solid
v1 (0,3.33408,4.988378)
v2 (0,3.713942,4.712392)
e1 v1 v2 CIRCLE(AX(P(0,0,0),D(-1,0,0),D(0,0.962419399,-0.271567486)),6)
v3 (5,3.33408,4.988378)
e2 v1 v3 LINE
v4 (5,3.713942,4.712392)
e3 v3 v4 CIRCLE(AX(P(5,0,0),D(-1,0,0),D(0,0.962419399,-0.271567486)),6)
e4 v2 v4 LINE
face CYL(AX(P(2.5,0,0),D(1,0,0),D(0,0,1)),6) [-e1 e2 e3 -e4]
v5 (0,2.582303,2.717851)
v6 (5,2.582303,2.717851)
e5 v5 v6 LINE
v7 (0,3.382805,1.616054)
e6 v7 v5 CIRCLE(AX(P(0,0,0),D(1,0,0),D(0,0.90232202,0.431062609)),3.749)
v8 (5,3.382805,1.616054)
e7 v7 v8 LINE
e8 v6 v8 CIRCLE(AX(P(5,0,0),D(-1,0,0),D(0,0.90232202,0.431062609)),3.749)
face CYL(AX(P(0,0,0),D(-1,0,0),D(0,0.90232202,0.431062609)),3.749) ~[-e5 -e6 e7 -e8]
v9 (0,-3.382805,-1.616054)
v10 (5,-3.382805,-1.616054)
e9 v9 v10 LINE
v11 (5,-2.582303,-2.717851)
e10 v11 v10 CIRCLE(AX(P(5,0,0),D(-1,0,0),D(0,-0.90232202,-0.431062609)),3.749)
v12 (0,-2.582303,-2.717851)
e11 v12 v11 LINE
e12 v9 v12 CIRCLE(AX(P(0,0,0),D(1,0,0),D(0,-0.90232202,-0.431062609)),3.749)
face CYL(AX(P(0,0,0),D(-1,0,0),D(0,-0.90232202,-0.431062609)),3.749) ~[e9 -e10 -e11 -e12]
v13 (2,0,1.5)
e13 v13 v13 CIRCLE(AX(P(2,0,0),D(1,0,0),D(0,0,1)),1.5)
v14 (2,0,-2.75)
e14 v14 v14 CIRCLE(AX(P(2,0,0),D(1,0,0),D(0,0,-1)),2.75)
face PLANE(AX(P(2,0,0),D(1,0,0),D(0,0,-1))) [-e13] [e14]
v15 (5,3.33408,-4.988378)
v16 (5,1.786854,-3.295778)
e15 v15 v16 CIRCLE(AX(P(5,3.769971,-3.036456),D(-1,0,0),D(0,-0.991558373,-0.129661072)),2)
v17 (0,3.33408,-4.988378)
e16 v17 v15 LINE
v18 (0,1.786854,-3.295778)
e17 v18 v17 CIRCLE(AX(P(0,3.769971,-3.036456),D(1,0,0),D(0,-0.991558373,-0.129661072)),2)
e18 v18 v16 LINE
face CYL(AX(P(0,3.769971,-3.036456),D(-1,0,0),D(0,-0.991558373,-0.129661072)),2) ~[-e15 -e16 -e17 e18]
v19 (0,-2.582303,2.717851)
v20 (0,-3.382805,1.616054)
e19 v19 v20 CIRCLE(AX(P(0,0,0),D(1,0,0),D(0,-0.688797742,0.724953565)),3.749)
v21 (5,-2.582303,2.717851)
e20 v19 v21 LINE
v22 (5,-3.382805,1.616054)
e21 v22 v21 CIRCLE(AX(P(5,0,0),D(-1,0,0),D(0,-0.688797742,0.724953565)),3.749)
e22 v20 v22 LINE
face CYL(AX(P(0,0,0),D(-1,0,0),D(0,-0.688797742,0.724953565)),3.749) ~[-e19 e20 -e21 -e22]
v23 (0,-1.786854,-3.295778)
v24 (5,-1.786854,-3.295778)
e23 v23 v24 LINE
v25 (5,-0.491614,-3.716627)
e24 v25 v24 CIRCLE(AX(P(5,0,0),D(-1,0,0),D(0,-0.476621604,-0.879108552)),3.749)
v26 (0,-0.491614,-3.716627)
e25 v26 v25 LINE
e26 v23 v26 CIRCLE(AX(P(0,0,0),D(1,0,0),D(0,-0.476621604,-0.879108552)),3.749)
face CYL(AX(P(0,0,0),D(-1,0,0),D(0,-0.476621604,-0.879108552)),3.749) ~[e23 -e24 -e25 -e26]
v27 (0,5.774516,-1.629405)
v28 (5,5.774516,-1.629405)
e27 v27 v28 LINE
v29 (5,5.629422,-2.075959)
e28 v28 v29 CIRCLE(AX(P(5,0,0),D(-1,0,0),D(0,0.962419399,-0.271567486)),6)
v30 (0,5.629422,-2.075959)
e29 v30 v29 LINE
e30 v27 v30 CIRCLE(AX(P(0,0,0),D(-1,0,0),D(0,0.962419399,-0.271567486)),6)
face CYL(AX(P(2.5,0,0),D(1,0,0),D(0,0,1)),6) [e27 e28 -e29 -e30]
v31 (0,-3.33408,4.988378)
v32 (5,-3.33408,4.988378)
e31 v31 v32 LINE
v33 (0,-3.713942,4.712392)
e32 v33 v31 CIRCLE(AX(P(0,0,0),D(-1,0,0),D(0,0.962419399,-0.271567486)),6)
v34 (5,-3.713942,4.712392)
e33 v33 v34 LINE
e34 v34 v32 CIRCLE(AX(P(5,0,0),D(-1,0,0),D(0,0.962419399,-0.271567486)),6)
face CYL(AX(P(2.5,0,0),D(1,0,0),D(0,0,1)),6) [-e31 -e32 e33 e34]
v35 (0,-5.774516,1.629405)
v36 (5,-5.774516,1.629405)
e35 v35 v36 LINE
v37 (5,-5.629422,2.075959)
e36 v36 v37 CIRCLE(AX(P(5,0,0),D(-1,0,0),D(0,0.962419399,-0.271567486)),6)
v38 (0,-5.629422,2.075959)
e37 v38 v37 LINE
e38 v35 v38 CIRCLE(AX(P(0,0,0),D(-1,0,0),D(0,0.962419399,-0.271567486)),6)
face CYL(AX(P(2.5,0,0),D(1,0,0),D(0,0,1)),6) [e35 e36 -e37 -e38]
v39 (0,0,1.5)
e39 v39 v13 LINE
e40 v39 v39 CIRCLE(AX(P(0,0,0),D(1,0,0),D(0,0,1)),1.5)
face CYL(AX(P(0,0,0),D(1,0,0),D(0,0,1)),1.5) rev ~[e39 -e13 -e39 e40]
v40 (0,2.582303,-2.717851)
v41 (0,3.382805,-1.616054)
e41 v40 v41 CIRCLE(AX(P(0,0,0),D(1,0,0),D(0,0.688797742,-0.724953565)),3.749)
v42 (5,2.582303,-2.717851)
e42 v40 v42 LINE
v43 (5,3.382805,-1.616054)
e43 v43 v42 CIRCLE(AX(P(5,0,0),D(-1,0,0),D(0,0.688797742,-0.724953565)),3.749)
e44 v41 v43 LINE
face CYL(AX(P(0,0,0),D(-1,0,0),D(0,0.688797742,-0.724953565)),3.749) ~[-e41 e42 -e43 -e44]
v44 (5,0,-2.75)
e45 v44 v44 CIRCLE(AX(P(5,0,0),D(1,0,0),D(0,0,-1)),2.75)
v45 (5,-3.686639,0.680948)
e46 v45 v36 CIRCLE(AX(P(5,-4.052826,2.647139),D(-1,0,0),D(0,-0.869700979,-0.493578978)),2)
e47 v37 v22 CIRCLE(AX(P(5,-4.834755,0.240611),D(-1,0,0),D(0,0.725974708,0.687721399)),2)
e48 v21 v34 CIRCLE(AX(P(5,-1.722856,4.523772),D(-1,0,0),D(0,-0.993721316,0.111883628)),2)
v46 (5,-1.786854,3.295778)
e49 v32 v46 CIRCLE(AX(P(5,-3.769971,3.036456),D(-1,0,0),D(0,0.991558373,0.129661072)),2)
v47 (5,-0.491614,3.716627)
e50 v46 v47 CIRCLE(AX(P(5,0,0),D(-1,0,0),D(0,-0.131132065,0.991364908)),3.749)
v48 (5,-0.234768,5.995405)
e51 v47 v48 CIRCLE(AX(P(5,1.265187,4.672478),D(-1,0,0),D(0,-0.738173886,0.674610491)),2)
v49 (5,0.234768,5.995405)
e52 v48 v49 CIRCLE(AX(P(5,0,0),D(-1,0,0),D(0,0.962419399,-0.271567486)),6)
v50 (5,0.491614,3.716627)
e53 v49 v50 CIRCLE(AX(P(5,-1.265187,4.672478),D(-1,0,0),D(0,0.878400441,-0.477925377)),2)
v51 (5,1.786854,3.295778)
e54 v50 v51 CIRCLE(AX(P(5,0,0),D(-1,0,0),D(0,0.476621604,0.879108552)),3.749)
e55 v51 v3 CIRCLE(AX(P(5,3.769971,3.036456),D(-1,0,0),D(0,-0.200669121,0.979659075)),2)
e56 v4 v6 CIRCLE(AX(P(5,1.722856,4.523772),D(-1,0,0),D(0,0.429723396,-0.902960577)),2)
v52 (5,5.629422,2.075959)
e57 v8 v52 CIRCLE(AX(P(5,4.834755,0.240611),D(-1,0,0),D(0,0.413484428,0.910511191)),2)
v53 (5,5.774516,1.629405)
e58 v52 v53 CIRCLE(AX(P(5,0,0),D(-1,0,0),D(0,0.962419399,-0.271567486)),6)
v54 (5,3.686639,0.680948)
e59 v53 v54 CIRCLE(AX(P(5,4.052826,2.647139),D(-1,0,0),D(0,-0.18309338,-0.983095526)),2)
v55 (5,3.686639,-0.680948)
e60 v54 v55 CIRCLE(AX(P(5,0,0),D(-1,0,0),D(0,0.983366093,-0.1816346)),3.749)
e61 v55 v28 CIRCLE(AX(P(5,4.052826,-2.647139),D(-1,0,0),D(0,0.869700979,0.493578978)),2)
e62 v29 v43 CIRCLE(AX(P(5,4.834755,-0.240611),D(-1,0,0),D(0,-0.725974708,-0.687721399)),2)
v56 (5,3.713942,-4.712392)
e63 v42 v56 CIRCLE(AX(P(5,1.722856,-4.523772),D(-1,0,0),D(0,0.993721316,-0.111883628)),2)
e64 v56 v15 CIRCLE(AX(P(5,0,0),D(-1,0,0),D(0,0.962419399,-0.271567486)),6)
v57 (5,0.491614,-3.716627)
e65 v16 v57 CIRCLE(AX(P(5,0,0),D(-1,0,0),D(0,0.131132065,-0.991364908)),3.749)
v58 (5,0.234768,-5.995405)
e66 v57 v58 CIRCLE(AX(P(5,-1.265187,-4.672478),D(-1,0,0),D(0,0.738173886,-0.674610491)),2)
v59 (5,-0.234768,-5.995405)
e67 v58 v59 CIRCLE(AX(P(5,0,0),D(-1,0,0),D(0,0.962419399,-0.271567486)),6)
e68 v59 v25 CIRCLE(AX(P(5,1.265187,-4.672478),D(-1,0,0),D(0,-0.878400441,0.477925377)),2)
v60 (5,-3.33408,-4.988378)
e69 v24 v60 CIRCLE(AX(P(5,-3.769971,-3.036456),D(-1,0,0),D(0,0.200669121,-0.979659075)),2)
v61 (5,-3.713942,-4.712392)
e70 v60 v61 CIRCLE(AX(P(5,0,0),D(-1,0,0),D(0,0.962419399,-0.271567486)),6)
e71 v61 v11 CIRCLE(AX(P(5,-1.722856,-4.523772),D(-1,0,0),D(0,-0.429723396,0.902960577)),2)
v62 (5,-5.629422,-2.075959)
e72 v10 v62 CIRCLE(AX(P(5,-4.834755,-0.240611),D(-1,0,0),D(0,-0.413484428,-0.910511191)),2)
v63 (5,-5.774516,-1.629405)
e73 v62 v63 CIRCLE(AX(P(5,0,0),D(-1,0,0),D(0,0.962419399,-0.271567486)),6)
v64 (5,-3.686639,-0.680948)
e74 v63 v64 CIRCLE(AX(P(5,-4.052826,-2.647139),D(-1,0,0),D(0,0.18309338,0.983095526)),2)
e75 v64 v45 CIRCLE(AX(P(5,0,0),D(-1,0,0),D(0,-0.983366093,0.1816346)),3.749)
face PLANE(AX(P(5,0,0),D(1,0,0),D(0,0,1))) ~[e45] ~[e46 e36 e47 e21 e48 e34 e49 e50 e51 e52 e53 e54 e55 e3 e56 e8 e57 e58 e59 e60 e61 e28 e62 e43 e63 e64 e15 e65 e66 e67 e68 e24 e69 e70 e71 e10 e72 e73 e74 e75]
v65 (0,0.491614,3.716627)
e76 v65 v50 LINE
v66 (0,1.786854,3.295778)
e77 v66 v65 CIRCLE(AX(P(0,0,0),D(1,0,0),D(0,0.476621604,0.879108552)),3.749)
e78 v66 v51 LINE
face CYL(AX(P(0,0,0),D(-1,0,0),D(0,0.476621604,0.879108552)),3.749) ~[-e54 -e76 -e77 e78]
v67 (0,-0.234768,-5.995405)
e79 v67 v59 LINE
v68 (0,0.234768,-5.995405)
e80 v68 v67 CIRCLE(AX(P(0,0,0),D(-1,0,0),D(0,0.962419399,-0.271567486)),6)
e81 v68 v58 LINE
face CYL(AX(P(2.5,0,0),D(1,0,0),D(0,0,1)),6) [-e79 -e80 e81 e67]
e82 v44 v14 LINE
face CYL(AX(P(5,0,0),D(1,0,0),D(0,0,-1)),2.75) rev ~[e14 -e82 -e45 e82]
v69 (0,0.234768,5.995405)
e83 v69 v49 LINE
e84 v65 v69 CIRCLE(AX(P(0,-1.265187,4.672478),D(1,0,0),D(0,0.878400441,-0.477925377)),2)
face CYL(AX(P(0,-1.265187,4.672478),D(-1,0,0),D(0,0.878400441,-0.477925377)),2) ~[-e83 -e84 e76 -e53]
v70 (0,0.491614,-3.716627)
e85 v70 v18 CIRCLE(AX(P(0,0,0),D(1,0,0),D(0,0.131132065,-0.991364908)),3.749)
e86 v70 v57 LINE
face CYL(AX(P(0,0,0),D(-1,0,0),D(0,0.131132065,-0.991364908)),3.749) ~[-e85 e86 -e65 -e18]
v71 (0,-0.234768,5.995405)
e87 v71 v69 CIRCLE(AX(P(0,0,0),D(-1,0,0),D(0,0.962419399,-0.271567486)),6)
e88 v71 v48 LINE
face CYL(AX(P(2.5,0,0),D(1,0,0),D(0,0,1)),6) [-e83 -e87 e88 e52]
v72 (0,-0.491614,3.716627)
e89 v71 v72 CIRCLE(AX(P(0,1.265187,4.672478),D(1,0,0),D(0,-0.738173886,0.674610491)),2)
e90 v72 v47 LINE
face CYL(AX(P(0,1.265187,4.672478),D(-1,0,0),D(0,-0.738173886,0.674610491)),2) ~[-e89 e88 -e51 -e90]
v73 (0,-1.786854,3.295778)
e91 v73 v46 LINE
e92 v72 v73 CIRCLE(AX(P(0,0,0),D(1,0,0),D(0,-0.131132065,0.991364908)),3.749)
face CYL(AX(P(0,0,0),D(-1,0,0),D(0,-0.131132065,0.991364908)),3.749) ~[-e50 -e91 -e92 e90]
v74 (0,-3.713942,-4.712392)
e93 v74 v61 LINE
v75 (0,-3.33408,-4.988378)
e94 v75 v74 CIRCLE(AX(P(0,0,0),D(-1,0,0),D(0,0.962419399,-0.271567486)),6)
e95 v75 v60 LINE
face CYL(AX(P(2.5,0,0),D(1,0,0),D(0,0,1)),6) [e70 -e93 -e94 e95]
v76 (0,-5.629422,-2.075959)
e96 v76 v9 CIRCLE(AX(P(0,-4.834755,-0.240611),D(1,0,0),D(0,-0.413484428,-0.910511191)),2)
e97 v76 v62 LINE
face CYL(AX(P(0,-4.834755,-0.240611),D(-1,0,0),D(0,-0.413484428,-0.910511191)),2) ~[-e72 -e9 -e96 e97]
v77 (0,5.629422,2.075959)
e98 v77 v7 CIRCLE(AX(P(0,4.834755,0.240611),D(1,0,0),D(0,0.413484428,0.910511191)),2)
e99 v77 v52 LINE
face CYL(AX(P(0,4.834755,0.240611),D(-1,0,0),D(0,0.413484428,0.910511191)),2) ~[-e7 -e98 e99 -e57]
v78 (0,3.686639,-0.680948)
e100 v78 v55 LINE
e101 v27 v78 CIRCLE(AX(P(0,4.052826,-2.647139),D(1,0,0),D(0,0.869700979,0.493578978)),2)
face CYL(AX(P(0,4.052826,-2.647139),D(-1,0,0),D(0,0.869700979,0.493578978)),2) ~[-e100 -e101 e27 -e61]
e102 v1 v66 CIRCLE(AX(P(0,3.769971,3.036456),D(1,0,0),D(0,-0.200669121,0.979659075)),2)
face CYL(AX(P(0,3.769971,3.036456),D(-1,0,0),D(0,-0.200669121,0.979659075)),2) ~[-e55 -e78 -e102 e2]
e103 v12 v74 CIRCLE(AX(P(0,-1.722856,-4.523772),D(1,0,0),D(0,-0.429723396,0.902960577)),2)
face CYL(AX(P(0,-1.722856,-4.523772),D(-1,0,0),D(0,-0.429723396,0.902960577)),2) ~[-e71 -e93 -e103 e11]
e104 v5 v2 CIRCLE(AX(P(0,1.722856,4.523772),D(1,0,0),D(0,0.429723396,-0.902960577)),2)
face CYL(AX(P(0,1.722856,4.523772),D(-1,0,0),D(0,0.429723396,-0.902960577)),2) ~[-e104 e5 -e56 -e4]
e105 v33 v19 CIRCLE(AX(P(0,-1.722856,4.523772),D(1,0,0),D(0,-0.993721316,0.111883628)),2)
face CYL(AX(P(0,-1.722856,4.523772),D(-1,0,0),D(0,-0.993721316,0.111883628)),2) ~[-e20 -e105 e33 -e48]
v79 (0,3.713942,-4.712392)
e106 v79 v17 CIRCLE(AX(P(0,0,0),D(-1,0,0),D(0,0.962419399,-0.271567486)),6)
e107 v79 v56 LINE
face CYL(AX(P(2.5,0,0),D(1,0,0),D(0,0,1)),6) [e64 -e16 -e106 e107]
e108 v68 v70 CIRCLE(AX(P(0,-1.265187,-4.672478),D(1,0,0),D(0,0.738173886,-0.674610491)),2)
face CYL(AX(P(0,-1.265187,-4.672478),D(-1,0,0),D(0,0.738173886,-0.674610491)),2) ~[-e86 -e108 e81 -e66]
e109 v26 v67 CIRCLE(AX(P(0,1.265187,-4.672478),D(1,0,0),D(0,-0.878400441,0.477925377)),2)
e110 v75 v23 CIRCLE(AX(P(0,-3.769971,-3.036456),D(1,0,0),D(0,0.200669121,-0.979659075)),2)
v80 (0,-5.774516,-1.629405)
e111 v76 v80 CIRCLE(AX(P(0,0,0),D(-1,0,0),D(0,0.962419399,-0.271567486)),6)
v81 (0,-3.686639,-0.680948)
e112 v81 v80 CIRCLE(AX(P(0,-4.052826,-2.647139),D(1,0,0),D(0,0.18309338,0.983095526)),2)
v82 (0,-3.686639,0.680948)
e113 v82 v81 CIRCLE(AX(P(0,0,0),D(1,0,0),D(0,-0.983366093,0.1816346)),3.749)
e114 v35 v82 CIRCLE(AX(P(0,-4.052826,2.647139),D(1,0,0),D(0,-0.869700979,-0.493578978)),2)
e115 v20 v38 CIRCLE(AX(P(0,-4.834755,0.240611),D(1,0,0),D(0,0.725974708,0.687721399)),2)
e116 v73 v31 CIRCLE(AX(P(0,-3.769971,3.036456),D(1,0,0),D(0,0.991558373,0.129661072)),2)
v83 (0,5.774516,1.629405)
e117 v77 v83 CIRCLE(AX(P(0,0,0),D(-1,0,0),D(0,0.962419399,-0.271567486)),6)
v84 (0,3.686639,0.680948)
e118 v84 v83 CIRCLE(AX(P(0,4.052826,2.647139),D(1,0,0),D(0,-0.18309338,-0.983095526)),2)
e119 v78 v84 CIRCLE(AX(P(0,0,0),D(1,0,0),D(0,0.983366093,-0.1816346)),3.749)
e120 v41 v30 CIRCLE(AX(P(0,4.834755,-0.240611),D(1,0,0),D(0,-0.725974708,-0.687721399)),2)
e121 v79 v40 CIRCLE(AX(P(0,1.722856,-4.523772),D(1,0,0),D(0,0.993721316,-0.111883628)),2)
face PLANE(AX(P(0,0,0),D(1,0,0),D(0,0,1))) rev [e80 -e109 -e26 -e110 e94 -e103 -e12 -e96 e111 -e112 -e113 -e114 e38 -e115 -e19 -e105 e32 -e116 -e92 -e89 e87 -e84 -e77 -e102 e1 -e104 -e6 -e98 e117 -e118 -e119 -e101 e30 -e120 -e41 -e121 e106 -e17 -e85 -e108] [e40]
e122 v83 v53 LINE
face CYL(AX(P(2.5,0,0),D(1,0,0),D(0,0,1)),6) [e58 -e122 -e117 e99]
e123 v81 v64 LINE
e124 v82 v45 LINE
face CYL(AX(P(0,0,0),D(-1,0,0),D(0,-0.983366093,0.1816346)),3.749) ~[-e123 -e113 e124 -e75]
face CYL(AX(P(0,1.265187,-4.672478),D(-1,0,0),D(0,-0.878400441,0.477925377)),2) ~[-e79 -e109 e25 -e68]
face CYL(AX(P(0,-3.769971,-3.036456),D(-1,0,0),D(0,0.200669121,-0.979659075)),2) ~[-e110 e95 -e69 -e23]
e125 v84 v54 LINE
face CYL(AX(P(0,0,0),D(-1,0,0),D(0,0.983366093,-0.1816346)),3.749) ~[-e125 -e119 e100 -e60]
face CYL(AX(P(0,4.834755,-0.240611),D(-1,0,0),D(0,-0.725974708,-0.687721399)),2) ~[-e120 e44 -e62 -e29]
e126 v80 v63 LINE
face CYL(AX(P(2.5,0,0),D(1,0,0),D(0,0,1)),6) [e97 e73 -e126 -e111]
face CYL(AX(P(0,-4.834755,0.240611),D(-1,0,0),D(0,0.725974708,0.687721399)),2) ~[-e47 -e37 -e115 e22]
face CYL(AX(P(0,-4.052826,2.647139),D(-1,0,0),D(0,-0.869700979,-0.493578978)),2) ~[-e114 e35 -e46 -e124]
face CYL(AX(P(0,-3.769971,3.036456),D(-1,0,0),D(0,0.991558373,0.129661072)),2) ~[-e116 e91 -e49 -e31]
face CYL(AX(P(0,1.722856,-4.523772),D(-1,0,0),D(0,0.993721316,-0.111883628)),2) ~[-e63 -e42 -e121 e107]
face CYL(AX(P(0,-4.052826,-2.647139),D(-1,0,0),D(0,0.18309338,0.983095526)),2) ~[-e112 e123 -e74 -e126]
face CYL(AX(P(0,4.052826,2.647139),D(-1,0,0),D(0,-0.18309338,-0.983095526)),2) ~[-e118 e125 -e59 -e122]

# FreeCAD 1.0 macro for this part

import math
import FreeCAD as App
import Part
import Sketcher
from FreeCAD import Vector
Q = App.Units.Quantity


def add_polygon(sketch, points):
    """Adds a closed chain of lines whose ends are joined by coincident constraints."""
    first, n = sketch.GeometryCount, len(points)
    for a, b in zip(points, points[1:] + points[:1]):
        sketch.addGeometry(Part.LineSegment(App.Vector(*a, 0), App.Vector(*b, 0)), False)
    for i in range(n):
        sketch.addConstraint(Sketcher.Constraint("Coincident", first + i, 2, first + (i + 1) % n, 1))

doc = App.newDocument("Part")
body = doc.addObject("PartDesign::Body", "Body")

# Sketch on XZ plane
sketch1 = doc.addObject("Sketcher::SketchObject", "Sketch")
body.addObject(sketch1)
sketch1.AttachmentSupport = (doc.XZ_Plane, [""])
sketch1.MapMode = "FlatFace"
add_polygon(sketch1, [(0, -6), (0, 0), (5, 0), (5, -6)])  # lines 0-3
sketch1.addConstraint([
    Sketcher.Constraint("Vertical", 0),
    Sketcher.Constraint("Horizontal", 1),
    Sketcher.Constraint("Vertical", 2),
    Sketcher.Constraint("Horizontal", 3),
    Sketcher.Constraint("Coincident", 0, 2, -1, 1),
    Sketcher.Constraint("DistanceX", 1, 1, 1, 2, Q("5 mm")),
    Sketcher.Constraint("DistanceY", 0, 1, 0, 2, Q("6 mm")),
])
revolution = doc.addObject("PartDesign::Revolution", "Revolution")
body.addObject(revolution)
revolution.Profile = sketch1
revolution.ReferenceAxis = (sketch1, ["H_Axis"])
revolution.Angle = 360

# Sketch on YZ plane
sketch2 = doc.addObject("Sketcher::SketchObject", "Sketch001")
body.addObject(sketch2)
sketch2.AttachmentSupport = (doc.YZ_Plane, [""])
sketch2.MapMode = "FlatFace"
sketch2.addGeometry([
    Part.ArcOfCircle(Part.Circle(Vector(0, 0, 0), Vector(0, 0, 1), 3.7), math.radians(-10), math.radians(10)),
    Part.ArcOfCircle(Part.Circle(Vector(4.1, -2.6, 0), Vector(0, 0, 1), 2), math.radians(30), math.radians(101)),
    Part.ArcOfCircle(Part.Circle(Vector(0, 0, 0), Vector(0, 0, 1), 6), math.radians(-16), math.radians(16)),
    Part.ArcOfCircle(Part.Circle(Vector(4.1, 2.6, 0), Vector(0, 0, 1), 2), math.radians(-101), math.radians(-30)),
], False)
sketch2.addConstraint([
    Sketcher.Constraint("Coincident", 0, 1, 1, 2),
    Sketcher.Constraint("Coincident", 1, 1, 2, 1),
    Sketcher.Constraint("Coincident", 2, 2, 3, 2),
    Sketcher.Constraint("Coincident", 3, 1, 0, 2),
    Sketcher.Constraint("Coincident", 0, 3, -1, 1),
    Sketcher.Constraint("Coincident", 2, 3, -1, 1),
    Sketcher.Constraint("Equal", 1, 3),
    Sketcher.Constraint("Symmetric", 1, 3, 3, 3, -1),
    Sketcher.Constraint("Radius", 1, Q("2 mm")),
    Sketcher.Constraint("Radius", 0, Q("3.749 mm")),
    Sketcher.Constraint("Radius", 2, Q("6.0254 mm")),
    Sketcher.Constraint("DistanceX", 1, 3, 1, 1, Q("1.739402 mm")),
    Sketcher.Constraint("DistanceY", 1, 3, -1, 1, Q("2.647139 mm")),
])
pocket1 = doc.addObject("PartDesign::Pocket", "Pocket")
body.addObject(pocket1)
pocket1.Profile = sketch2
pocket1.Type = "ThroughAll"
pocket1.Reversed = True
doc.recompute()

polarpattern = doc.addObject("PartDesign::PolarPattern", "PolarPattern")
body.addObject(polarpattern)
polarpattern.Originals = [pocket1]
polarpattern.Axis = (doc.X_Axis, [""])
polarpattern.Angle = 360
polarpattern.Occurrences = 10
body.Tip = polarpattern

# Sketch on YZ plane
sketch3 = doc.addObject("Sketcher::SketchObject", "Sketch002")
body.addObject(sketch3)
sketch3.AttachmentSupport = (doc.YZ_Plane, [""])
sketch3.MapMode = "FlatFace"
sketch3.addGeometry(Part.Circle(Vector(0, 0, 0), Vector(0, 0, 1), 1.5), False)
sketch3.addConstraint([
    Sketcher.Constraint("Coincident", 0, 3, -1, 1),
    Sketcher.Constraint("Diameter", 0, Q("3 mm")),
])
pocket2 = doc.addObject("PartDesign::Pocket", "Pocket001")
body.addObject(pocket2)
pocket2.Profile = sketch3
pocket2.Length = 100.000102
pocket2.Midplane = True

# Sketch on YZ plane
sketch4 = doc.addObject("Sketcher::SketchObject", "Sketch003")
body.addObject(sketch4)
sketch4.AttachmentSupport = (doc.YZ_Plane, [""])
sketch4.MapMode = "FlatFace"
sketch4.AttachmentOffset = App.Placement(Vector(0, 0, 5), App.Rotation())
sketch4.addGeometry(Part.Circle(Vector(0, 0, 0), Vector(0, 0, 1), 2.8), False)
sketch4.addConstraint([
    Sketcher.Constraint("Coincident", 0, 3, -1, 1),
    Sketcher.Constraint("Diameter", 0, Q("5.5 mm")),
])
pocket3 = doc.addObject("PartDesign::Pocket", "Pocket002")
body.addObject(pocket3)
pocket3.Profile = sketch4
pocket3.Length = 3

doc.recompute()
